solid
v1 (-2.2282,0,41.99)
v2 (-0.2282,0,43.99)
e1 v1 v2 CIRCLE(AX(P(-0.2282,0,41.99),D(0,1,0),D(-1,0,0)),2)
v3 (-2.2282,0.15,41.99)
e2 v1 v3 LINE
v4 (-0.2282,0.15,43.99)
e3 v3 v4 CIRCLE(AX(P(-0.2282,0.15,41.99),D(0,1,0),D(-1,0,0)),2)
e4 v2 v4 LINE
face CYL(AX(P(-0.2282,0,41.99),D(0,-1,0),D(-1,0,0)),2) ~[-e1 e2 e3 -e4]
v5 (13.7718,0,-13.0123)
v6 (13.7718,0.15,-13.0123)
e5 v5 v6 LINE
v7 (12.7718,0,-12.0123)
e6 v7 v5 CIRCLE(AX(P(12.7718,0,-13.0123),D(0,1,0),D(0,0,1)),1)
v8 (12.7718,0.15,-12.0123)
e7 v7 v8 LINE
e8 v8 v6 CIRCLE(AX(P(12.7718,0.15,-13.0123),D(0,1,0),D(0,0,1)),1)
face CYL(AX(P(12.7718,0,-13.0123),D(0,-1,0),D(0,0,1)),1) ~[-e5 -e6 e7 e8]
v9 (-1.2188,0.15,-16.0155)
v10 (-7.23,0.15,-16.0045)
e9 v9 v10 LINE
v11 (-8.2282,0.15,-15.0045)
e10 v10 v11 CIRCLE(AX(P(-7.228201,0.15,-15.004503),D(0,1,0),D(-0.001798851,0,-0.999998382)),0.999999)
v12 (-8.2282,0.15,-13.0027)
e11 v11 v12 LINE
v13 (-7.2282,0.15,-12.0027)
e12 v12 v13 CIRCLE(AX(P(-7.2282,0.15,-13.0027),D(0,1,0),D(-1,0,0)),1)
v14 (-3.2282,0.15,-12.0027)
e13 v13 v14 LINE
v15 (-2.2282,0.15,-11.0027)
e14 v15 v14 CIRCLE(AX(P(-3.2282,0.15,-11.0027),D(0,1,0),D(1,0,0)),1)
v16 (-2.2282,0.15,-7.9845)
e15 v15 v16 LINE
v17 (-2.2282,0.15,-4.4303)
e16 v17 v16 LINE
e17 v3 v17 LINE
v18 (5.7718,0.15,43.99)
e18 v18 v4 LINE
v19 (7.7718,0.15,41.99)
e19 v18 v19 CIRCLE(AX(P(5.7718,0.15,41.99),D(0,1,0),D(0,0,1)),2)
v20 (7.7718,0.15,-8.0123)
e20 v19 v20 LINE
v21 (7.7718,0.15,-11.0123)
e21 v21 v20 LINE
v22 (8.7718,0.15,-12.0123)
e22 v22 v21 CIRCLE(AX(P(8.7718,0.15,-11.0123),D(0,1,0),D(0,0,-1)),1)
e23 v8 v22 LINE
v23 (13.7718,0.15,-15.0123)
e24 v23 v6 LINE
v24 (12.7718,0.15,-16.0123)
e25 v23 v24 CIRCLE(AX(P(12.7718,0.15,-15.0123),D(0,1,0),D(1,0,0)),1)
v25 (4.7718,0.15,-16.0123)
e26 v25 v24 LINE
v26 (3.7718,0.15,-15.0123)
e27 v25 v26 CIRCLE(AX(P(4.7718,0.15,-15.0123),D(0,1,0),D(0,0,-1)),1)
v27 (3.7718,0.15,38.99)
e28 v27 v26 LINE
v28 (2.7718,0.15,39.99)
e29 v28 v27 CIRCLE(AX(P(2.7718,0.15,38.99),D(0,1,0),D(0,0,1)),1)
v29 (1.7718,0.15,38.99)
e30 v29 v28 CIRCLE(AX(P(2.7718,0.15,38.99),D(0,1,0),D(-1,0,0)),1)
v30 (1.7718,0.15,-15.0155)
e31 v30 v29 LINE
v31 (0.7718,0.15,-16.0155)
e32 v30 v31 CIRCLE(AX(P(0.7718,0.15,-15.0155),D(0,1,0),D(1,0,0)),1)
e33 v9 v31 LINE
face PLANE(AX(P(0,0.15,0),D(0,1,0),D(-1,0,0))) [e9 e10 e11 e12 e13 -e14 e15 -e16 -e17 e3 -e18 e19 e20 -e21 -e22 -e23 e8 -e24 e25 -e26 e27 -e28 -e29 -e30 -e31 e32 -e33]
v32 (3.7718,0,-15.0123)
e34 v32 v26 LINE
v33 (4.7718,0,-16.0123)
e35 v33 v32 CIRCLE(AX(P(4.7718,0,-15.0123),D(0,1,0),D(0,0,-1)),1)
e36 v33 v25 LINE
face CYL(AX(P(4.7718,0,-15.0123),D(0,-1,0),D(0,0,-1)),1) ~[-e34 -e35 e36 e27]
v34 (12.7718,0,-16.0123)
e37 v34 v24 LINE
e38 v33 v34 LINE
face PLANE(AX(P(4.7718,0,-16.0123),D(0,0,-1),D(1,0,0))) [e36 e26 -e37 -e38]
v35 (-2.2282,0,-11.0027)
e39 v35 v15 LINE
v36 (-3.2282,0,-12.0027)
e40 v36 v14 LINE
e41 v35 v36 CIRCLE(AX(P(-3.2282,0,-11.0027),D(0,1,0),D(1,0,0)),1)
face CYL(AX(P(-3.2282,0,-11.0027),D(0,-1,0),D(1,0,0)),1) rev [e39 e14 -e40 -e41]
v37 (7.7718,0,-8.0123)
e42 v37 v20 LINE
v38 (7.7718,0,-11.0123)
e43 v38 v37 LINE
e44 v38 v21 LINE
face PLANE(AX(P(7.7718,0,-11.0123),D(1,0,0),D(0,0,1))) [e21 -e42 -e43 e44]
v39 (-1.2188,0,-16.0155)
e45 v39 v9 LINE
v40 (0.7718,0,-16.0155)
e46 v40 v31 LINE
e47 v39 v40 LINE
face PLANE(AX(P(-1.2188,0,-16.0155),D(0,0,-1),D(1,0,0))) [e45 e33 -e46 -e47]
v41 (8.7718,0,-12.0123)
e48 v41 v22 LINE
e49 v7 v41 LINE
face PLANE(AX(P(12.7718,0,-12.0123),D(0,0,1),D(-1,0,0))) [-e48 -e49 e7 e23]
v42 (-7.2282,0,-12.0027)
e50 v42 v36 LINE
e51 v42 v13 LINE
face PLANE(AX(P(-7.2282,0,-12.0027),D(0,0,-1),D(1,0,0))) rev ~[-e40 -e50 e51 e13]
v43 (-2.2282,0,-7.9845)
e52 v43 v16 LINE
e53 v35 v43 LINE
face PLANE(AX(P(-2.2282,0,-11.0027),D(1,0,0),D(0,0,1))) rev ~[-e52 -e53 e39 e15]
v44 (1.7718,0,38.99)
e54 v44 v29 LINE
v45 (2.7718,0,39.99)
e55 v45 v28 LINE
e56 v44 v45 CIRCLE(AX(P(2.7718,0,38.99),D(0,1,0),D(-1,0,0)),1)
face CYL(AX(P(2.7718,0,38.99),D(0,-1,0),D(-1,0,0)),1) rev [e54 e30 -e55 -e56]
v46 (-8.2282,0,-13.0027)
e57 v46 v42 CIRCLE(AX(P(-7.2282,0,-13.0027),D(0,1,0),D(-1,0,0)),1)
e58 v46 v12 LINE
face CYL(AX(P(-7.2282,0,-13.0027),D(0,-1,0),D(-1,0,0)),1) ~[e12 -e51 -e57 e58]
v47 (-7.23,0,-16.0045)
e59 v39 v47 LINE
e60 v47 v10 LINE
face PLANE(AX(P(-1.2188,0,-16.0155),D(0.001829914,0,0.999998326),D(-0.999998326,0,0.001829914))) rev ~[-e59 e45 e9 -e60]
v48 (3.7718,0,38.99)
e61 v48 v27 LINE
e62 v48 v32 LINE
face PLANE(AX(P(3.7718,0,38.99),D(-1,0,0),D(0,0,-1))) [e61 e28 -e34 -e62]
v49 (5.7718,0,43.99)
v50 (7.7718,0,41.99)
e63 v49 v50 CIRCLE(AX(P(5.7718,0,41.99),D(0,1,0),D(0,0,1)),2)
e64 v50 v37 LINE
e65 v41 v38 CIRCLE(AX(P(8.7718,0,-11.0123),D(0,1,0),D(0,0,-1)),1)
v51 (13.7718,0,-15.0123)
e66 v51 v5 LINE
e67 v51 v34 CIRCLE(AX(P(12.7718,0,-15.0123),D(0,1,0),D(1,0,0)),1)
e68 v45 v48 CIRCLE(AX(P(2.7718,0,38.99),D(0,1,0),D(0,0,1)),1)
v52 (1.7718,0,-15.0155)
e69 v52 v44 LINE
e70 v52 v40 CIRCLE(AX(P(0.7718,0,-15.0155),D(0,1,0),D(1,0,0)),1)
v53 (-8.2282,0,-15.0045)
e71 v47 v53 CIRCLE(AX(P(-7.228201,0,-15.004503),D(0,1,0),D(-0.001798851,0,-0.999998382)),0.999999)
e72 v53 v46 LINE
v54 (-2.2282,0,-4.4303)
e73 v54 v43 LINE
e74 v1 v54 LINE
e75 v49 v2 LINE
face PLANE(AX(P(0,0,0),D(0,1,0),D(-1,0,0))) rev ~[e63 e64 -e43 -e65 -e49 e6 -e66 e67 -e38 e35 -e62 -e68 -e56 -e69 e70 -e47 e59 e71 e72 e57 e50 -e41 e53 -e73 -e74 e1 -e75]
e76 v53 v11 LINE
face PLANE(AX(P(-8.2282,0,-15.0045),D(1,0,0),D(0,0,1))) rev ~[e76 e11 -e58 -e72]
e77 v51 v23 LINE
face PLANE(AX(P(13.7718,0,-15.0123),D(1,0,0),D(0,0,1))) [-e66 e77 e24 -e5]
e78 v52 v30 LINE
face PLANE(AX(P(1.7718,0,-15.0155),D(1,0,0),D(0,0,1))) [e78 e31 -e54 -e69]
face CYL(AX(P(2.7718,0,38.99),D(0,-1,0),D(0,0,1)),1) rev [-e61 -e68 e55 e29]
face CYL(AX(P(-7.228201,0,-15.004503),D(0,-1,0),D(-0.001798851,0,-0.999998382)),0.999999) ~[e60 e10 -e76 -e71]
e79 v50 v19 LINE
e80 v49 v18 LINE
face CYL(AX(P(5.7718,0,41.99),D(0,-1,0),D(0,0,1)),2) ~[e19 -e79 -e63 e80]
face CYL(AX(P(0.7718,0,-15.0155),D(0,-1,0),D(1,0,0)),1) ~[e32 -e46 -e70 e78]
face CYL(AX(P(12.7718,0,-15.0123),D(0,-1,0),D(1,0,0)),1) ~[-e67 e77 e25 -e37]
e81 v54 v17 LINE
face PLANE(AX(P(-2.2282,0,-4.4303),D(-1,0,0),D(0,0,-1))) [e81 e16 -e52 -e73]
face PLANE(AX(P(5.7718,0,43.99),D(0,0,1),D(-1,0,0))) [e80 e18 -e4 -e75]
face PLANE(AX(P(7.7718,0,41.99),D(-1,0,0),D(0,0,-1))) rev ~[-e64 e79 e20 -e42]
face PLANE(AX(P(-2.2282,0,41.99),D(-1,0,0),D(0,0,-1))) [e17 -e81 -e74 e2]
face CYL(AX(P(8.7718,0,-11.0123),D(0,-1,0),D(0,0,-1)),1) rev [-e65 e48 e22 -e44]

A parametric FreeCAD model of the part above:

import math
import FreeCAD as App
import Part
import Sketcher

doc = App.newDocument("Part")
body = doc.addObject("PartDesign::Body", "Body")

# Sketch on XZ plane
sketch1 = body.newObject("Sketcher::SketchObject", "Sketch")
sketch1.AttachmentSupport = (doc.getObject("XZ_Plane"), [""])
sketch1.MapMode = "FlatFace"
sketch1.addGeometry(Part.LineSegment(App.Vector(0.8, -16, 0), App.Vector(-1.2, -16, 0)), False)
sketch1.addGeometry(Part.LineSegment(App.Vector(-1.2, -16, 0), App.Vector(-7.2, -16, 0)), False)
sketch1.addGeometry(Part.ArcOfCircle(Part.Circle(App.Vector(-7.2, -15, 0), App.Vector(0, 0, 1), 1), math.radians(180), math.radians(270)), False)
sketch1.addGeometry(Part.LineSegment(App.Vector(-8.2, -15, 0), App.Vector(-8.2, -13, 0)), False)
sketch1.addGeometry(Part.ArcOfCircle(Part.Circle(App.Vector(-7.2, -13, 0), App.Vector(0, 0, 1), 1), math.radians(90), math.radians(180)), False)
sketch1.addGeometry(Part.LineSegment(App.Vector(-7.2, -12, 0), App.Vector(-3.2, -12, 0)), False)
sketch1.addGeometry(Part.ArcOfCircle(Part.Circle(App.Vector(-3.2, -11, 0), App.Vector(0, 0, 1), 1), math.radians(-90), math.radians(0)), False)
sketch1.addGeometry(Part.LineSegment(App.Vector(-2.2, -11, 0), App.Vector(-2.2, 42, 0)), False)
sketch1.addGeometry(Part.ArcOfCircle(Part.Circle(App.Vector(-0.2, 42, 0), App.Vector(0, 0, 1), 2), math.radians(90), math.radians(180)), False)
sketch1.addGeometry(Part.LineSegment(App.Vector(-0.2, 44, 0), App.Vector(5.8, 44, 0)), False)
sketch1.addGeometry(Part.ArcOfCircle(Part.Circle(App.Vector(5.8, 42, 0), App.Vector(0, 0, 1), 2), math.radians(0), math.radians(90)), False)
sketch1.addGeometry(Part.LineSegment(App.Vector(7.8, 42, 0), App.Vector(7.8, -11, 0)), False)
sketch1.addGeometry(Part.ArcOfCircle(Part.Circle(App.Vector(8.8, -11, 0), App.Vector(0, 0, 1), 1), math.radians(180), math.radians(270)), False)
sketch1.addGeometry(Part.LineSegment(App.Vector(8.8, -12, 0), App.Vector(12.8, -12, 0)), False)
sketch1.addGeometry(Part.ArcOfCircle(Part.Circle(App.Vector(12.8, -13, 0), App.Vector(0, 0, 1), 1), math.radians(0), math.radians(90)), False)
sketch1.addGeometry(Part.LineSegment(App.Vector(13.8, -13, 0), App.Vector(13.8, -15, 0)), False)
sketch1.addGeometry(Part.ArcOfCircle(Part.Circle(App.Vector(12.8, -15, 0), App.Vector(0, 0, 1), 1), math.radians(-90), math.radians(0)), False)
sketch1.addGeometry(Part.LineSegment(App.Vector(12.8, -16, 0), App.Vector(4.8, -16, 0)), False)
sketch1.addGeometry(Part.ArcOfCircle(Part.Circle(App.Vector(4.8, -15, 0), App.Vector(0, 0, 1), 1), math.radians(180), math.radians(270)), False)
sketch1.addGeometry(Part.LineSegment(App.Vector(3.8, -15, 0), App.Vector(3.8, 39, 0)), False)
sketch1.addGeometry(Part.ArcOfCircle(Part.Circle(App.Vector(2.8, 39, 0), App.Vector(0, 0, 1), 1), math.radians(0), math.radians(180)), False)
sketch1.addGeometry(Part.LineSegment(App.Vector(1.8, 39, 0), App.Vector(1.8, -15, 0)), False)
sketch1.addGeometry(Part.ArcOfCircle(Part.Circle(App.Vector(0.8, -15, 0), App.Vector(0, 0, 1), 1), math.radians(-90), math.radians(0)), False)
sketch1.addConstraint(Sketcher.Constraint("Coincident", 0, 2, 1, 1))
sketch1.addConstraint(Sketcher.Constraint("Tangent", 1, 2, 2, 2))
sketch1.addConstraint(Sketcher.Constraint("Tangent", 2, 1, 3, 1))
sketch1.addConstraint(Sketcher.Constraint("Tangent", 3, 2, 4, 2))
sketch1.addConstraint(Sketcher.Constraint("Tangent", 4, 1, 5, 1))
sketch1.addConstraint(Sketcher.Constraint("Tangent", 5, 2, 6, 1))
sketch1.addConstraint(Sketcher.Constraint("Tangent", 6, 2, 7, 1))
sketch1.addConstraint(Sketcher.Constraint("Tangent", 7, 2, 8, 2))
sketch1.addConstraint(Sketcher.Constraint("Tangent", 8, 1, 9, 1))
sketch1.addConstraint(Sketcher.Constraint("Tangent", 9, 2, 10, 2))
sketch1.addConstraint(Sketcher.Constraint("Tangent", 10, 1, 11, 1))
sketch1.addConstraint(Sketcher.Constraint("Tangent", 11, 2, 12, 1))
sketch1.addConstraint(Sketcher.Constraint("Tangent", 12, 2, 13, 1))
sketch1.addConstraint(Sketcher.Constraint("Tangent", 13, 2, 14, 2))
sketch1.addConstraint(Sketcher.Constraint("Tangent", 14, 1, 15, 1))
sketch1.addConstraint(Sketcher.Constraint("Tangent", 15, 2, 16, 2))
sketch1.addConstraint(Sketcher.Constraint("Tangent", 16, 1, 17, 1))
sketch1.addConstraint(Sketcher.Constraint("Tangent", 17, 2, 18, 2))
sketch1.addConstraint(Sketcher.Constraint("Tangent", 18, 1, 19, 1))
sketch1.addConstraint(Sketcher.Constraint("Tangent", 19, 2, 20, 1))
sketch1.addConstraint(Sketcher.Constraint("Tangent", 20, 2, 21, 1))
sketch1.addConstraint(Sketcher.Constraint("Tangent", 21, 2, 22, 2))
sketch1.addConstraint(Sketcher.Constraint("Tangent", 22, 1, 0, 1))
sketch1.addConstraint(Sketcher.Constraint("Horizontal", 0))
sketch1.addConstraint(Sketcher.Constraint("Vertical", 3))
sketch1.addConstraint(Sketcher.Constraint("Horizontal", 5))
sketch1.addConstraint(Sketcher.Constraint("Vertical", 7))
sketch1.addConstraint(Sketcher.Constraint("Horizontal", 9))
sketch1.addConstraint(Sketcher.Constraint("Vertical", 11))
sketch1.addConstraint(Sketcher.Constraint("Horizontal", 13))
sketch1.addConstraint(Sketcher.Constraint("Vertical", 15))
sketch1.addConstraint(Sketcher.Constraint("Horizontal", 17))
sketch1.addConstraint(Sketcher.Constraint("Vertical", 19))
sketch1.addConstraint(Sketcher.Constraint("Vertical", 21))
sketch1.addConstraint(Sketcher.Constraint("Equal", 2, 4))
sketch1.addConstraint(Sketcher.Constraint("Equal", 4, 6))
sketch1.addConstraint(Sketcher.Constraint("Equal", 8, 10))
sketch1.addConstraint(Sketcher.Constraint("Equal", 6, 12))
sketch1.addConstraint(Sketcher.Constraint("Equal", 12, 14))
sketch1.addConstraint(Sketcher.Constraint("Equal", 14, 16))
sketch1.addConstraint(Sketcher.Constraint("Equal", 16, 18))
sketch1.addConstraint(Sketcher.Constraint("Equal", 18, 20))
sketch1.addConstraint(Sketcher.Constraint("Equal", 20, 22))
sketch1.addConstraint(Sketcher.Constraint("Equal", 5, 13))
sketch1.addConstraint(Sketcher.Constraint("Radius", 2, 1.0))
sketch1.addConstraint(Sketcher.Constraint("Radius", 8, 2.0))
sketch1.addConstraint(Sketcher.Constraint("DistanceX", 5, 1, 5, 2, 4.0))
sketch1.addConstraint(Sketcher.Constraint("DistanceY", 15, 2, 15, 1, 2.0))
sketch1.addConstraint(Sketcher.Constraint("DistanceX", 18, 3, 12, 3, 4.0))
sketch1.addConstraint(Sketcher.Constraint("DistanceX", 4, 3, 20, 3, 10.0))
sketch1.addConstraint(Sketcher.Constraint("DistanceY", 20, 3, 8, 3, 3.0))
sketch1.addConstraint(Sketcher.Constraint("DistanceY", -1, 1, 8, 3, 41.99))
sketch1.addConstraint(Sketcher.Constraint("DistanceX", 1, 2, -1, 1, 7.23))
sketch1.addConstraint(Sketcher.Constraint("DistanceX", 0, 2, 0, 1, 1.9906))
sketch1.addConstraint(Sketcher.Constraint("DistanceY", 3, 1, 3, 2, 2.0018))
sketch1.addConstraint(Sketcher.Constraint("DistanceY", 7, 1, 7, 2, 52.9927))
sketch1.addConstraint(Sketcher.Constraint("DistanceY", 11, 2, 11, 1, 53.0023))
sketch1.addConstraint(Sketcher.Constraint("DistanceY", 21, 2, 21, 1, 54.0055))
pad1 = body.newObject("PartDesign::Pad", "Pad")
pad1.Profile = sketch1
pad1.Length = 0.15
pad1.Reversed = True

doc.recompute()
